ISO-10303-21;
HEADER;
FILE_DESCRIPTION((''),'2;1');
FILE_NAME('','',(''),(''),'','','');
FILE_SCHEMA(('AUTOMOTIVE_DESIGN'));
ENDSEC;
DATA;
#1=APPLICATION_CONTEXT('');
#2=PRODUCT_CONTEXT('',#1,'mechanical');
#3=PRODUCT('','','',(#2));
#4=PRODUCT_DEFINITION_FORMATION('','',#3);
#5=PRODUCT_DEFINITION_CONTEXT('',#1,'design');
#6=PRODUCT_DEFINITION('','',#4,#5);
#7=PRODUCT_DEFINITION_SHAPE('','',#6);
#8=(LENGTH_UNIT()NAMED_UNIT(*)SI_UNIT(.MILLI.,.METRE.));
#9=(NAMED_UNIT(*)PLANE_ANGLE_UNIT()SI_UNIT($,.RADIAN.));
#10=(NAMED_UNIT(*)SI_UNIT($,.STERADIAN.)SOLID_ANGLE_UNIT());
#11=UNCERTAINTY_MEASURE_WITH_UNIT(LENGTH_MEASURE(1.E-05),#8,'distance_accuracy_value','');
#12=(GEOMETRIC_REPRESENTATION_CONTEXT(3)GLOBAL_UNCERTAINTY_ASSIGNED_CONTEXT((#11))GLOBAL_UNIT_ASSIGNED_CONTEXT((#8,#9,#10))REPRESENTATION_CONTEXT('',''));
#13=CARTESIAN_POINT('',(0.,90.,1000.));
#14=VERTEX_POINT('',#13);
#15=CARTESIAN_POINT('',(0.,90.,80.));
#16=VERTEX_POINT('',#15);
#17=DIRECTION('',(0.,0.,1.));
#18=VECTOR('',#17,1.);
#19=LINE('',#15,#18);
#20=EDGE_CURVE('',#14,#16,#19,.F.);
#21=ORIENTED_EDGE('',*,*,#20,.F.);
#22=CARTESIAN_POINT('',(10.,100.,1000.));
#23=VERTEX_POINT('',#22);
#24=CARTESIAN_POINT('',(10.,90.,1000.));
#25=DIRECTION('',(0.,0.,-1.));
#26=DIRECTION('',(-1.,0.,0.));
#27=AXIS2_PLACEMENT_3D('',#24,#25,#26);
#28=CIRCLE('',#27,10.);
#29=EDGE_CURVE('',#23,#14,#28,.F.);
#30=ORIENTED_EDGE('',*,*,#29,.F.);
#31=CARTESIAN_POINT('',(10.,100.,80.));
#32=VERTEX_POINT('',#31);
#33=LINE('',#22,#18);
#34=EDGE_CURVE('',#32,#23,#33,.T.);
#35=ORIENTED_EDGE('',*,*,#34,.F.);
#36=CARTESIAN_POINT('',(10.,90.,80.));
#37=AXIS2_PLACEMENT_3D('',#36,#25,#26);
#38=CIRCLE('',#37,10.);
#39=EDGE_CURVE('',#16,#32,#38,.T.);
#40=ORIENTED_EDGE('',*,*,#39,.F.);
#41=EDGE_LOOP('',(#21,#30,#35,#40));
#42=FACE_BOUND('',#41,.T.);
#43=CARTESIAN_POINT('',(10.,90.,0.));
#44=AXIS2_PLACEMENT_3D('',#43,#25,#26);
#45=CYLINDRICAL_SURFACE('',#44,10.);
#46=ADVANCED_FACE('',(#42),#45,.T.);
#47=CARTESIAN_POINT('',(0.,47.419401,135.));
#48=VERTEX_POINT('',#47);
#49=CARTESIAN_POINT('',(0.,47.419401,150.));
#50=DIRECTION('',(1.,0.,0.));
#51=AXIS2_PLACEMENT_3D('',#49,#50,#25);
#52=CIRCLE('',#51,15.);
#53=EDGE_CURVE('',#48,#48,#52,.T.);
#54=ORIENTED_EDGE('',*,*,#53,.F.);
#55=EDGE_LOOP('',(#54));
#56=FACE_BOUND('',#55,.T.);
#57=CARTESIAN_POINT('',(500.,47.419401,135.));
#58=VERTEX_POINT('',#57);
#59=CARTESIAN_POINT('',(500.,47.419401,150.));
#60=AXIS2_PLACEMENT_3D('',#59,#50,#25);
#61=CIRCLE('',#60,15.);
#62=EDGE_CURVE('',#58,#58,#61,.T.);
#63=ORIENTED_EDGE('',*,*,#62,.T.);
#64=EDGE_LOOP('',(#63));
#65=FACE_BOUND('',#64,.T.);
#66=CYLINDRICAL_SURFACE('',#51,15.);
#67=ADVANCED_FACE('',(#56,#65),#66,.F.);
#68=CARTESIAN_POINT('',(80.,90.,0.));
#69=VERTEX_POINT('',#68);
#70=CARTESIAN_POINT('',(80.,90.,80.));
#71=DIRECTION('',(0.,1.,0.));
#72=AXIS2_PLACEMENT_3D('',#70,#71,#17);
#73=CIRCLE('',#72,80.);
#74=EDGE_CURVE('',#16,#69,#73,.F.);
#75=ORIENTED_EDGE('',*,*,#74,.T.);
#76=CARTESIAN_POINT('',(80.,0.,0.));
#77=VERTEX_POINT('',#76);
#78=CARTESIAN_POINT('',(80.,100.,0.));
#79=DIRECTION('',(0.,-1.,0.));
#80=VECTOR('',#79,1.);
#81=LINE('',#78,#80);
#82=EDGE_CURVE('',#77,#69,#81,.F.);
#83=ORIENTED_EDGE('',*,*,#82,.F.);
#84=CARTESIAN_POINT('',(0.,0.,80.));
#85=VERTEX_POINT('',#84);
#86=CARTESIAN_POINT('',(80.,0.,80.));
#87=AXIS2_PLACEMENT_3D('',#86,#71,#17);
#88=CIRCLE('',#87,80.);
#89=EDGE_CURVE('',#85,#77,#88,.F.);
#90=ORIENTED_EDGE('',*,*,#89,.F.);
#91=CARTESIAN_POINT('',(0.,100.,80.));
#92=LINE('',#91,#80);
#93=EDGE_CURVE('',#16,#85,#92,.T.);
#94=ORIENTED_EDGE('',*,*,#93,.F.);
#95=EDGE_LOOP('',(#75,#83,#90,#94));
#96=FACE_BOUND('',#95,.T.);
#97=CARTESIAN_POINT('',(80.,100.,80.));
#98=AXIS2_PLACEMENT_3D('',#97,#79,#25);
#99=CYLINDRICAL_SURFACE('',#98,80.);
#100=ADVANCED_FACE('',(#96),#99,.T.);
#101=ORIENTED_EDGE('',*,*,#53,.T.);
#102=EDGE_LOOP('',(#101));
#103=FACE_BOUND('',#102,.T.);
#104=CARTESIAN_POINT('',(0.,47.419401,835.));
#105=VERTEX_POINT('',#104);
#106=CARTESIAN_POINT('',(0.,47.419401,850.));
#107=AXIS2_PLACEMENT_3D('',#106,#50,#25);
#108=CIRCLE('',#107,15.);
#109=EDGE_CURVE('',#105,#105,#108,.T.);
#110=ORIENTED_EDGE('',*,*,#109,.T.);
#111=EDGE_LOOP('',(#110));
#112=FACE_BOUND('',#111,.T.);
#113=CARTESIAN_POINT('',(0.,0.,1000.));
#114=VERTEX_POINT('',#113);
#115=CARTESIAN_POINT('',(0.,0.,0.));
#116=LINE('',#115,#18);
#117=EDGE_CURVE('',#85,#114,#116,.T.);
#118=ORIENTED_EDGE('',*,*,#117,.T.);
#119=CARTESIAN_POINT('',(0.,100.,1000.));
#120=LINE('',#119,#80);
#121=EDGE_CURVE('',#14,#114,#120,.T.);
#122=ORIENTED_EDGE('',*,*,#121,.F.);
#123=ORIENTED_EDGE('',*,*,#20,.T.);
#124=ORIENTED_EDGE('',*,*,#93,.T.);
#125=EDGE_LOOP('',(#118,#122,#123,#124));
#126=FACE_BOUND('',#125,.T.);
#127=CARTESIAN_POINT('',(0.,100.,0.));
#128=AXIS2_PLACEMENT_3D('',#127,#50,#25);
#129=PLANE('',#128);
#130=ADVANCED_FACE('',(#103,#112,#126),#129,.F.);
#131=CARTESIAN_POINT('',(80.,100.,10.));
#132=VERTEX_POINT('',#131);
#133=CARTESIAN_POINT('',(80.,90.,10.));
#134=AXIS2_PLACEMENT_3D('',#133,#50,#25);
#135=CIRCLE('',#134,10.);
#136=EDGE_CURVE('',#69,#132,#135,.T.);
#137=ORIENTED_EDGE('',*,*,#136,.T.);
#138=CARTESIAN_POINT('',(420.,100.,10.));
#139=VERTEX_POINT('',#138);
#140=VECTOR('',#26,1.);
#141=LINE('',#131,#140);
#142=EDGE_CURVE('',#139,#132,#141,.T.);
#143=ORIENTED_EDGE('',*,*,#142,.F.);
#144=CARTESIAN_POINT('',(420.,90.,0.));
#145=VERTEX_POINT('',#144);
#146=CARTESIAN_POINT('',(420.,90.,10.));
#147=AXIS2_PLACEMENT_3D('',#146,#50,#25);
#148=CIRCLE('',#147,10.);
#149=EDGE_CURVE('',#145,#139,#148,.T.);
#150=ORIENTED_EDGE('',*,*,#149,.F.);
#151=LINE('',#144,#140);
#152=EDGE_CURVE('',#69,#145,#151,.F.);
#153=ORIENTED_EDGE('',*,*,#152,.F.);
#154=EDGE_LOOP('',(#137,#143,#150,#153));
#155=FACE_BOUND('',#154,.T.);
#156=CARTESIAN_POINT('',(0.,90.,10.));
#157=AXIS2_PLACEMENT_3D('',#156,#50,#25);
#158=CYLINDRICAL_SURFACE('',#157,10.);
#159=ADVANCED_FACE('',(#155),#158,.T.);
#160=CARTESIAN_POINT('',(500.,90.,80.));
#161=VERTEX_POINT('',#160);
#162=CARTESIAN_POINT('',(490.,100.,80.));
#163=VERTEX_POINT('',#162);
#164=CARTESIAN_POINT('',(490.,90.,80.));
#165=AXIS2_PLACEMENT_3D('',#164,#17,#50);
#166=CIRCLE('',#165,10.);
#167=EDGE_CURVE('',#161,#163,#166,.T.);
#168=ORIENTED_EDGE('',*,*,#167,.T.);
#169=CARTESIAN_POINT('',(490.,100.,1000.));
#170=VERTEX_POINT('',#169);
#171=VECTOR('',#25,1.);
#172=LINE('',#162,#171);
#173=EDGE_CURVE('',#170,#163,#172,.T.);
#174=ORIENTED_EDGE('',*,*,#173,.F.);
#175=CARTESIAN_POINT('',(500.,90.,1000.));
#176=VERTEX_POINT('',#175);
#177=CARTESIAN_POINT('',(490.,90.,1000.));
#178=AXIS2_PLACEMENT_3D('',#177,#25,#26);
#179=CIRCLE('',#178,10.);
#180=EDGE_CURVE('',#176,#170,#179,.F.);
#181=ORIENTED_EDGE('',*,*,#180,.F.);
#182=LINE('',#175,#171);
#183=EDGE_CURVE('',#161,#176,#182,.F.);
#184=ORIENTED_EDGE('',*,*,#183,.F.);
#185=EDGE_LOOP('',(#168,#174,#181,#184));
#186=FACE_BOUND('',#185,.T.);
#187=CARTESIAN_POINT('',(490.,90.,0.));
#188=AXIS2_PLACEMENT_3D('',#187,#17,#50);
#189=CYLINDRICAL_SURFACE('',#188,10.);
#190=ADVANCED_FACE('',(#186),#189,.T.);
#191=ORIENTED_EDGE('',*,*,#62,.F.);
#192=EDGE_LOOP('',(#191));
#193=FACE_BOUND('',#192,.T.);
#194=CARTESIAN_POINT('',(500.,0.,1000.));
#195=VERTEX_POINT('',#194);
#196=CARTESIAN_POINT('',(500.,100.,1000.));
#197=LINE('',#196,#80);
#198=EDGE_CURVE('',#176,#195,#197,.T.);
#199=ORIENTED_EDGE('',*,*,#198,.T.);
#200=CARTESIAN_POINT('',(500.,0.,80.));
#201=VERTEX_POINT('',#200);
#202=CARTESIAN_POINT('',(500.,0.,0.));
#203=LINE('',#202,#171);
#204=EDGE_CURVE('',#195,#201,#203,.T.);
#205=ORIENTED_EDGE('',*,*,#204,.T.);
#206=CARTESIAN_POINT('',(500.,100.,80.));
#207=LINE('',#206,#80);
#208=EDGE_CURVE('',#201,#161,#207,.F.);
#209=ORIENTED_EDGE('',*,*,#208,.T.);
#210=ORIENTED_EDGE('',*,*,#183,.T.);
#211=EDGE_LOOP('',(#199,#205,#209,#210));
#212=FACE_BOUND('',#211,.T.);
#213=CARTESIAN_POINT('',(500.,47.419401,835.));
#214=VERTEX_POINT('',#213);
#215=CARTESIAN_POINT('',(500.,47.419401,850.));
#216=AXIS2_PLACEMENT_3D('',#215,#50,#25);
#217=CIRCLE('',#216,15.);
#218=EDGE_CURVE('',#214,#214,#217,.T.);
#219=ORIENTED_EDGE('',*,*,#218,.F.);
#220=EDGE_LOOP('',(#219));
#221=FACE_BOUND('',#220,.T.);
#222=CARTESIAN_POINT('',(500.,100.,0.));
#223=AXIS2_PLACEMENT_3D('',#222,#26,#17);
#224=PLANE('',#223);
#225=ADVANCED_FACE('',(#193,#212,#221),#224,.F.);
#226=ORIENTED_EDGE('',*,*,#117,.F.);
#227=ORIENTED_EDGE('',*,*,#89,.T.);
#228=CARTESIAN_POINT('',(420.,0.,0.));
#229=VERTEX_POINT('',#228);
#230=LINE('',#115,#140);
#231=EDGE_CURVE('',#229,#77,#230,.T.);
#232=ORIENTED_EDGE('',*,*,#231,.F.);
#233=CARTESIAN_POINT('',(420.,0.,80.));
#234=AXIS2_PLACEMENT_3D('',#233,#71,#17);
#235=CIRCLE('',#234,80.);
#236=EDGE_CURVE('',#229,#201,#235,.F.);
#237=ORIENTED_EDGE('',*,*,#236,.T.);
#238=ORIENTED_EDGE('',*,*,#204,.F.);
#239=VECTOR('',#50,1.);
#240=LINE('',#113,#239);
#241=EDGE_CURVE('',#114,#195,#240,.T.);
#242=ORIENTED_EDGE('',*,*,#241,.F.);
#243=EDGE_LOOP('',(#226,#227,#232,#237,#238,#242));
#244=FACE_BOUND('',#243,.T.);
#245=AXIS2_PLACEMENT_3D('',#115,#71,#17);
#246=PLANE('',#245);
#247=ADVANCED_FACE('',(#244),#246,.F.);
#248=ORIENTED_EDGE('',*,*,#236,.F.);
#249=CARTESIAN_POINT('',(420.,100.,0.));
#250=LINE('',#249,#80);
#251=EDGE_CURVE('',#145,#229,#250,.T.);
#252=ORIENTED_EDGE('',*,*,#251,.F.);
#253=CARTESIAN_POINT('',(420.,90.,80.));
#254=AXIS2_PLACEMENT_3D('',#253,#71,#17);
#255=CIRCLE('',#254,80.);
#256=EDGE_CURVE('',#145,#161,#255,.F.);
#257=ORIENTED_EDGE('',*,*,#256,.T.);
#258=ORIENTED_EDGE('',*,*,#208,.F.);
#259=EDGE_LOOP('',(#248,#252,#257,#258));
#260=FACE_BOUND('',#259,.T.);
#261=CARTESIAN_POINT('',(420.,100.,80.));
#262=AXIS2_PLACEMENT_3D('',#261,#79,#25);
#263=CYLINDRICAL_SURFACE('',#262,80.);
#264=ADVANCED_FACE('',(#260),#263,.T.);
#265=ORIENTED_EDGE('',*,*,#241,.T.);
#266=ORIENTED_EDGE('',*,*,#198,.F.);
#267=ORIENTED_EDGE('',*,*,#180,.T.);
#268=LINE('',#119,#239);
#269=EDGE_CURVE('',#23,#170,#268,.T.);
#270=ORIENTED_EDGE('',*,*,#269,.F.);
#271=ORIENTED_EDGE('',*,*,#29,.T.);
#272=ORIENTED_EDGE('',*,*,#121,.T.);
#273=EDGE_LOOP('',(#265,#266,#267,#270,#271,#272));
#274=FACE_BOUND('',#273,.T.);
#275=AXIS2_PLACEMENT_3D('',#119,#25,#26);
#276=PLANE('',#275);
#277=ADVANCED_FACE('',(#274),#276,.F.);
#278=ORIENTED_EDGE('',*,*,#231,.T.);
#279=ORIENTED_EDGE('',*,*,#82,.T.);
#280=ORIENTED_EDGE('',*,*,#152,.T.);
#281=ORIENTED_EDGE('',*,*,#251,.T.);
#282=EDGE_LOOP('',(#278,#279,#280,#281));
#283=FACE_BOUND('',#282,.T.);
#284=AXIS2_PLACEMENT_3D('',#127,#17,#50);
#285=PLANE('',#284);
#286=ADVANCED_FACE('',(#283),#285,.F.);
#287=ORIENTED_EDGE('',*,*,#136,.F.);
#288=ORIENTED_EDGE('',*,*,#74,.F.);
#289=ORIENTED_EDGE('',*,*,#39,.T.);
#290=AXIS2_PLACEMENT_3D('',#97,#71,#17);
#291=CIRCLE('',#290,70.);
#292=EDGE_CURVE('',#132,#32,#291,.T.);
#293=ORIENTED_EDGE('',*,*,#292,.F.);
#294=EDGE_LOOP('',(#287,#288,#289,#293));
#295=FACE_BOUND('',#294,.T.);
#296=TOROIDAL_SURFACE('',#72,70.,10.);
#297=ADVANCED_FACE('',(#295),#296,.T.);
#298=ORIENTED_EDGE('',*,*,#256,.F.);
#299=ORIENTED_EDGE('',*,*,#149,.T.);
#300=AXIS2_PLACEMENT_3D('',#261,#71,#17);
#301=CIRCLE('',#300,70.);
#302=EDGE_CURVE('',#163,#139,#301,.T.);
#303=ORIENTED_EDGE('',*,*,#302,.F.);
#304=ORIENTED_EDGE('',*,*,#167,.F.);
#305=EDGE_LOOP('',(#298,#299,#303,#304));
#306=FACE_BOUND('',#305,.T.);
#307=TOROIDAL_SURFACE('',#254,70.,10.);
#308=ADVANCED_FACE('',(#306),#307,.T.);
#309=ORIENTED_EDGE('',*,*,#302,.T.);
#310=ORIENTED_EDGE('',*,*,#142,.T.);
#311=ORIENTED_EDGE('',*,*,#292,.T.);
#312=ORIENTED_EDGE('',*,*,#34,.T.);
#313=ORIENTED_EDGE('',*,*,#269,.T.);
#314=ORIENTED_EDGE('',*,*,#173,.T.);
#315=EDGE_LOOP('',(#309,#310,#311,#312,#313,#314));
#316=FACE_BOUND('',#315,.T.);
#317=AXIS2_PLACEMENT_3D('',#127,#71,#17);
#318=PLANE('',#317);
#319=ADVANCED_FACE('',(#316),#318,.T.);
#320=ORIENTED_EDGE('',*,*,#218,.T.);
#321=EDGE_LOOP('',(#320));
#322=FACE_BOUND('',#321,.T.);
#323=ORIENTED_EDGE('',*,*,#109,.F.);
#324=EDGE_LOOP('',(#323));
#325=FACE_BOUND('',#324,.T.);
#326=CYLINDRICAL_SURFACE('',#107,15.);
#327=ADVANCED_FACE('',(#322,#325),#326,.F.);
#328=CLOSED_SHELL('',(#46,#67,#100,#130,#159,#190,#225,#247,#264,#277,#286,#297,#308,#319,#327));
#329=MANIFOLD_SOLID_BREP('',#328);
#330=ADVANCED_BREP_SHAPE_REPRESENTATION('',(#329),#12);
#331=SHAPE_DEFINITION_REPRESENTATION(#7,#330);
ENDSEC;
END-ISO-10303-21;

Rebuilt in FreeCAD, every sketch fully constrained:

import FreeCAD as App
import Part
import Sketcher
Q = App.Units.Quantity


def edges_at(feature, points):
    """Names of the edges that pass closest to the given points."""
    edges = feature.Shape.Edges
    near = lambda p: min(range(len(edges)), key=lambda i: edges[i].distToShape(Part.Vertex(*p))[0])
    return sorted({f"Edge{near(p) + 1}" for p in points})


def add_polygon(sketch, points):
    """Adds a closed chain of lines whose ends are joined by coincident constraints."""
    first, n = sketch.GeometryCount, len(points)
    for a, b in zip(points, points[1:] + points[:1]):
        sketch.addGeometry(Part.LineSegment(App.Vector(*a, 0), App.Vector(*b, 0)), False)
    for i in range(n):
        sketch.addConstraint(Sketcher.Constraint("Coincident", first + i, 2, first + (i + 1) % n, 1))

doc = App.newDocument("Part")
body = doc.addObject("PartDesign::Body", "Body")

# Sketch on XZ plane
sketch1 = body.newObject("Sketcher::SketchObject", "Sketch")
sketch1.AttachmentSupport = (doc.getObject("XZ_Plane"), [""])
sketch1.MapMode = "FlatFace"
add_polygon(sketch1, [(0, 0), (0, 1000), (500, 1000), (500, 0)])  # lines 0-3
sketch1.addConstraint([
    Sketcher.Constraint("Vertical", 0),
    Sketcher.Constraint("Horizontal", 1),
    Sketcher.Constraint("Vertical", 2),
    Sketcher.Constraint("Horizontal", 3),
    Sketcher.Constraint("Coincident", 3, 2, -1, 1),
    Sketcher.Constraint("DistanceX", 1, 1, 1, 2, Q("500 mm")),
    Sketcher.Constraint("DistanceY", 0, 1, 0, 2, Q("1000 mm")),
])
pad1 = body.newObject("PartDesign::Pad", "Pad")
pad1.Profile = sketch1
pad1.Length = 100
pad1.Reversed = True

# Sketch on YZ plane
sketch2 = body.newObject("Sketcher::SketchObject", "Sketch001")
sketch2.AttachmentSupport = (doc.getObject("YZ_Plane"), [""])
sketch2.MapMode = "FlatFace"
sketch2.AttachmentOffset = App.Placement(App.Vector(0, 0, 500), App.Rotation())
sketch2.addGeometry([
    Part.Circle(App.Vector(47.419401, 850, 0), App.Vector(0, 0, 1), 15),
    Part.Circle(App.Vector(47.419401, 150, 0), App.Vector(0, 0, 1), 15),
], False)
sketch2.addConstraint([
    Sketcher.Constraint("Equal", 0, 1),
    Sketcher.Constraint("Vertical", 0, 3, 1, 3),
    Sketcher.Constraint("Diameter", 0, Q("30 mm")),
    Sketcher.Constraint("DistanceY", -1, 1, 0, 3, Q("850 mm")),
    Sketcher.Constraint("DistanceY", -1, 1, 1, 3, Q("150 mm")),
    Sketcher.Constraint("DistanceX", -1, 1, 0, 3, Q("47.419401 mm")),
])
pocket1 = body.newObject("PartDesign::Pocket", "Pocket")
pocket1.Profile = sketch2
pocket1.Type = "ThroughAll"
doc.recompute()

fillet = body.newObject("PartDesign::Fillet", "Fillet")
fillet.Base = (pocket1, edges_at(pocket1, [(0, 50, 0), (500, 50, 0)]))
fillet.Radius = 80
doc.recompute()

fillet2 = body.newObject("PartDesign::Fillet", "Fillet001")
fillet2.Base = (fillet, edges_at(fillet, [
    (500, 100, 540),
    (250, 100, 0),
    (0, 100, 540),
    (23.431, 100, 23.431),
    (476.569, 100, 23.431),
]))
fillet2.Radius = 10

doc.recompute()
